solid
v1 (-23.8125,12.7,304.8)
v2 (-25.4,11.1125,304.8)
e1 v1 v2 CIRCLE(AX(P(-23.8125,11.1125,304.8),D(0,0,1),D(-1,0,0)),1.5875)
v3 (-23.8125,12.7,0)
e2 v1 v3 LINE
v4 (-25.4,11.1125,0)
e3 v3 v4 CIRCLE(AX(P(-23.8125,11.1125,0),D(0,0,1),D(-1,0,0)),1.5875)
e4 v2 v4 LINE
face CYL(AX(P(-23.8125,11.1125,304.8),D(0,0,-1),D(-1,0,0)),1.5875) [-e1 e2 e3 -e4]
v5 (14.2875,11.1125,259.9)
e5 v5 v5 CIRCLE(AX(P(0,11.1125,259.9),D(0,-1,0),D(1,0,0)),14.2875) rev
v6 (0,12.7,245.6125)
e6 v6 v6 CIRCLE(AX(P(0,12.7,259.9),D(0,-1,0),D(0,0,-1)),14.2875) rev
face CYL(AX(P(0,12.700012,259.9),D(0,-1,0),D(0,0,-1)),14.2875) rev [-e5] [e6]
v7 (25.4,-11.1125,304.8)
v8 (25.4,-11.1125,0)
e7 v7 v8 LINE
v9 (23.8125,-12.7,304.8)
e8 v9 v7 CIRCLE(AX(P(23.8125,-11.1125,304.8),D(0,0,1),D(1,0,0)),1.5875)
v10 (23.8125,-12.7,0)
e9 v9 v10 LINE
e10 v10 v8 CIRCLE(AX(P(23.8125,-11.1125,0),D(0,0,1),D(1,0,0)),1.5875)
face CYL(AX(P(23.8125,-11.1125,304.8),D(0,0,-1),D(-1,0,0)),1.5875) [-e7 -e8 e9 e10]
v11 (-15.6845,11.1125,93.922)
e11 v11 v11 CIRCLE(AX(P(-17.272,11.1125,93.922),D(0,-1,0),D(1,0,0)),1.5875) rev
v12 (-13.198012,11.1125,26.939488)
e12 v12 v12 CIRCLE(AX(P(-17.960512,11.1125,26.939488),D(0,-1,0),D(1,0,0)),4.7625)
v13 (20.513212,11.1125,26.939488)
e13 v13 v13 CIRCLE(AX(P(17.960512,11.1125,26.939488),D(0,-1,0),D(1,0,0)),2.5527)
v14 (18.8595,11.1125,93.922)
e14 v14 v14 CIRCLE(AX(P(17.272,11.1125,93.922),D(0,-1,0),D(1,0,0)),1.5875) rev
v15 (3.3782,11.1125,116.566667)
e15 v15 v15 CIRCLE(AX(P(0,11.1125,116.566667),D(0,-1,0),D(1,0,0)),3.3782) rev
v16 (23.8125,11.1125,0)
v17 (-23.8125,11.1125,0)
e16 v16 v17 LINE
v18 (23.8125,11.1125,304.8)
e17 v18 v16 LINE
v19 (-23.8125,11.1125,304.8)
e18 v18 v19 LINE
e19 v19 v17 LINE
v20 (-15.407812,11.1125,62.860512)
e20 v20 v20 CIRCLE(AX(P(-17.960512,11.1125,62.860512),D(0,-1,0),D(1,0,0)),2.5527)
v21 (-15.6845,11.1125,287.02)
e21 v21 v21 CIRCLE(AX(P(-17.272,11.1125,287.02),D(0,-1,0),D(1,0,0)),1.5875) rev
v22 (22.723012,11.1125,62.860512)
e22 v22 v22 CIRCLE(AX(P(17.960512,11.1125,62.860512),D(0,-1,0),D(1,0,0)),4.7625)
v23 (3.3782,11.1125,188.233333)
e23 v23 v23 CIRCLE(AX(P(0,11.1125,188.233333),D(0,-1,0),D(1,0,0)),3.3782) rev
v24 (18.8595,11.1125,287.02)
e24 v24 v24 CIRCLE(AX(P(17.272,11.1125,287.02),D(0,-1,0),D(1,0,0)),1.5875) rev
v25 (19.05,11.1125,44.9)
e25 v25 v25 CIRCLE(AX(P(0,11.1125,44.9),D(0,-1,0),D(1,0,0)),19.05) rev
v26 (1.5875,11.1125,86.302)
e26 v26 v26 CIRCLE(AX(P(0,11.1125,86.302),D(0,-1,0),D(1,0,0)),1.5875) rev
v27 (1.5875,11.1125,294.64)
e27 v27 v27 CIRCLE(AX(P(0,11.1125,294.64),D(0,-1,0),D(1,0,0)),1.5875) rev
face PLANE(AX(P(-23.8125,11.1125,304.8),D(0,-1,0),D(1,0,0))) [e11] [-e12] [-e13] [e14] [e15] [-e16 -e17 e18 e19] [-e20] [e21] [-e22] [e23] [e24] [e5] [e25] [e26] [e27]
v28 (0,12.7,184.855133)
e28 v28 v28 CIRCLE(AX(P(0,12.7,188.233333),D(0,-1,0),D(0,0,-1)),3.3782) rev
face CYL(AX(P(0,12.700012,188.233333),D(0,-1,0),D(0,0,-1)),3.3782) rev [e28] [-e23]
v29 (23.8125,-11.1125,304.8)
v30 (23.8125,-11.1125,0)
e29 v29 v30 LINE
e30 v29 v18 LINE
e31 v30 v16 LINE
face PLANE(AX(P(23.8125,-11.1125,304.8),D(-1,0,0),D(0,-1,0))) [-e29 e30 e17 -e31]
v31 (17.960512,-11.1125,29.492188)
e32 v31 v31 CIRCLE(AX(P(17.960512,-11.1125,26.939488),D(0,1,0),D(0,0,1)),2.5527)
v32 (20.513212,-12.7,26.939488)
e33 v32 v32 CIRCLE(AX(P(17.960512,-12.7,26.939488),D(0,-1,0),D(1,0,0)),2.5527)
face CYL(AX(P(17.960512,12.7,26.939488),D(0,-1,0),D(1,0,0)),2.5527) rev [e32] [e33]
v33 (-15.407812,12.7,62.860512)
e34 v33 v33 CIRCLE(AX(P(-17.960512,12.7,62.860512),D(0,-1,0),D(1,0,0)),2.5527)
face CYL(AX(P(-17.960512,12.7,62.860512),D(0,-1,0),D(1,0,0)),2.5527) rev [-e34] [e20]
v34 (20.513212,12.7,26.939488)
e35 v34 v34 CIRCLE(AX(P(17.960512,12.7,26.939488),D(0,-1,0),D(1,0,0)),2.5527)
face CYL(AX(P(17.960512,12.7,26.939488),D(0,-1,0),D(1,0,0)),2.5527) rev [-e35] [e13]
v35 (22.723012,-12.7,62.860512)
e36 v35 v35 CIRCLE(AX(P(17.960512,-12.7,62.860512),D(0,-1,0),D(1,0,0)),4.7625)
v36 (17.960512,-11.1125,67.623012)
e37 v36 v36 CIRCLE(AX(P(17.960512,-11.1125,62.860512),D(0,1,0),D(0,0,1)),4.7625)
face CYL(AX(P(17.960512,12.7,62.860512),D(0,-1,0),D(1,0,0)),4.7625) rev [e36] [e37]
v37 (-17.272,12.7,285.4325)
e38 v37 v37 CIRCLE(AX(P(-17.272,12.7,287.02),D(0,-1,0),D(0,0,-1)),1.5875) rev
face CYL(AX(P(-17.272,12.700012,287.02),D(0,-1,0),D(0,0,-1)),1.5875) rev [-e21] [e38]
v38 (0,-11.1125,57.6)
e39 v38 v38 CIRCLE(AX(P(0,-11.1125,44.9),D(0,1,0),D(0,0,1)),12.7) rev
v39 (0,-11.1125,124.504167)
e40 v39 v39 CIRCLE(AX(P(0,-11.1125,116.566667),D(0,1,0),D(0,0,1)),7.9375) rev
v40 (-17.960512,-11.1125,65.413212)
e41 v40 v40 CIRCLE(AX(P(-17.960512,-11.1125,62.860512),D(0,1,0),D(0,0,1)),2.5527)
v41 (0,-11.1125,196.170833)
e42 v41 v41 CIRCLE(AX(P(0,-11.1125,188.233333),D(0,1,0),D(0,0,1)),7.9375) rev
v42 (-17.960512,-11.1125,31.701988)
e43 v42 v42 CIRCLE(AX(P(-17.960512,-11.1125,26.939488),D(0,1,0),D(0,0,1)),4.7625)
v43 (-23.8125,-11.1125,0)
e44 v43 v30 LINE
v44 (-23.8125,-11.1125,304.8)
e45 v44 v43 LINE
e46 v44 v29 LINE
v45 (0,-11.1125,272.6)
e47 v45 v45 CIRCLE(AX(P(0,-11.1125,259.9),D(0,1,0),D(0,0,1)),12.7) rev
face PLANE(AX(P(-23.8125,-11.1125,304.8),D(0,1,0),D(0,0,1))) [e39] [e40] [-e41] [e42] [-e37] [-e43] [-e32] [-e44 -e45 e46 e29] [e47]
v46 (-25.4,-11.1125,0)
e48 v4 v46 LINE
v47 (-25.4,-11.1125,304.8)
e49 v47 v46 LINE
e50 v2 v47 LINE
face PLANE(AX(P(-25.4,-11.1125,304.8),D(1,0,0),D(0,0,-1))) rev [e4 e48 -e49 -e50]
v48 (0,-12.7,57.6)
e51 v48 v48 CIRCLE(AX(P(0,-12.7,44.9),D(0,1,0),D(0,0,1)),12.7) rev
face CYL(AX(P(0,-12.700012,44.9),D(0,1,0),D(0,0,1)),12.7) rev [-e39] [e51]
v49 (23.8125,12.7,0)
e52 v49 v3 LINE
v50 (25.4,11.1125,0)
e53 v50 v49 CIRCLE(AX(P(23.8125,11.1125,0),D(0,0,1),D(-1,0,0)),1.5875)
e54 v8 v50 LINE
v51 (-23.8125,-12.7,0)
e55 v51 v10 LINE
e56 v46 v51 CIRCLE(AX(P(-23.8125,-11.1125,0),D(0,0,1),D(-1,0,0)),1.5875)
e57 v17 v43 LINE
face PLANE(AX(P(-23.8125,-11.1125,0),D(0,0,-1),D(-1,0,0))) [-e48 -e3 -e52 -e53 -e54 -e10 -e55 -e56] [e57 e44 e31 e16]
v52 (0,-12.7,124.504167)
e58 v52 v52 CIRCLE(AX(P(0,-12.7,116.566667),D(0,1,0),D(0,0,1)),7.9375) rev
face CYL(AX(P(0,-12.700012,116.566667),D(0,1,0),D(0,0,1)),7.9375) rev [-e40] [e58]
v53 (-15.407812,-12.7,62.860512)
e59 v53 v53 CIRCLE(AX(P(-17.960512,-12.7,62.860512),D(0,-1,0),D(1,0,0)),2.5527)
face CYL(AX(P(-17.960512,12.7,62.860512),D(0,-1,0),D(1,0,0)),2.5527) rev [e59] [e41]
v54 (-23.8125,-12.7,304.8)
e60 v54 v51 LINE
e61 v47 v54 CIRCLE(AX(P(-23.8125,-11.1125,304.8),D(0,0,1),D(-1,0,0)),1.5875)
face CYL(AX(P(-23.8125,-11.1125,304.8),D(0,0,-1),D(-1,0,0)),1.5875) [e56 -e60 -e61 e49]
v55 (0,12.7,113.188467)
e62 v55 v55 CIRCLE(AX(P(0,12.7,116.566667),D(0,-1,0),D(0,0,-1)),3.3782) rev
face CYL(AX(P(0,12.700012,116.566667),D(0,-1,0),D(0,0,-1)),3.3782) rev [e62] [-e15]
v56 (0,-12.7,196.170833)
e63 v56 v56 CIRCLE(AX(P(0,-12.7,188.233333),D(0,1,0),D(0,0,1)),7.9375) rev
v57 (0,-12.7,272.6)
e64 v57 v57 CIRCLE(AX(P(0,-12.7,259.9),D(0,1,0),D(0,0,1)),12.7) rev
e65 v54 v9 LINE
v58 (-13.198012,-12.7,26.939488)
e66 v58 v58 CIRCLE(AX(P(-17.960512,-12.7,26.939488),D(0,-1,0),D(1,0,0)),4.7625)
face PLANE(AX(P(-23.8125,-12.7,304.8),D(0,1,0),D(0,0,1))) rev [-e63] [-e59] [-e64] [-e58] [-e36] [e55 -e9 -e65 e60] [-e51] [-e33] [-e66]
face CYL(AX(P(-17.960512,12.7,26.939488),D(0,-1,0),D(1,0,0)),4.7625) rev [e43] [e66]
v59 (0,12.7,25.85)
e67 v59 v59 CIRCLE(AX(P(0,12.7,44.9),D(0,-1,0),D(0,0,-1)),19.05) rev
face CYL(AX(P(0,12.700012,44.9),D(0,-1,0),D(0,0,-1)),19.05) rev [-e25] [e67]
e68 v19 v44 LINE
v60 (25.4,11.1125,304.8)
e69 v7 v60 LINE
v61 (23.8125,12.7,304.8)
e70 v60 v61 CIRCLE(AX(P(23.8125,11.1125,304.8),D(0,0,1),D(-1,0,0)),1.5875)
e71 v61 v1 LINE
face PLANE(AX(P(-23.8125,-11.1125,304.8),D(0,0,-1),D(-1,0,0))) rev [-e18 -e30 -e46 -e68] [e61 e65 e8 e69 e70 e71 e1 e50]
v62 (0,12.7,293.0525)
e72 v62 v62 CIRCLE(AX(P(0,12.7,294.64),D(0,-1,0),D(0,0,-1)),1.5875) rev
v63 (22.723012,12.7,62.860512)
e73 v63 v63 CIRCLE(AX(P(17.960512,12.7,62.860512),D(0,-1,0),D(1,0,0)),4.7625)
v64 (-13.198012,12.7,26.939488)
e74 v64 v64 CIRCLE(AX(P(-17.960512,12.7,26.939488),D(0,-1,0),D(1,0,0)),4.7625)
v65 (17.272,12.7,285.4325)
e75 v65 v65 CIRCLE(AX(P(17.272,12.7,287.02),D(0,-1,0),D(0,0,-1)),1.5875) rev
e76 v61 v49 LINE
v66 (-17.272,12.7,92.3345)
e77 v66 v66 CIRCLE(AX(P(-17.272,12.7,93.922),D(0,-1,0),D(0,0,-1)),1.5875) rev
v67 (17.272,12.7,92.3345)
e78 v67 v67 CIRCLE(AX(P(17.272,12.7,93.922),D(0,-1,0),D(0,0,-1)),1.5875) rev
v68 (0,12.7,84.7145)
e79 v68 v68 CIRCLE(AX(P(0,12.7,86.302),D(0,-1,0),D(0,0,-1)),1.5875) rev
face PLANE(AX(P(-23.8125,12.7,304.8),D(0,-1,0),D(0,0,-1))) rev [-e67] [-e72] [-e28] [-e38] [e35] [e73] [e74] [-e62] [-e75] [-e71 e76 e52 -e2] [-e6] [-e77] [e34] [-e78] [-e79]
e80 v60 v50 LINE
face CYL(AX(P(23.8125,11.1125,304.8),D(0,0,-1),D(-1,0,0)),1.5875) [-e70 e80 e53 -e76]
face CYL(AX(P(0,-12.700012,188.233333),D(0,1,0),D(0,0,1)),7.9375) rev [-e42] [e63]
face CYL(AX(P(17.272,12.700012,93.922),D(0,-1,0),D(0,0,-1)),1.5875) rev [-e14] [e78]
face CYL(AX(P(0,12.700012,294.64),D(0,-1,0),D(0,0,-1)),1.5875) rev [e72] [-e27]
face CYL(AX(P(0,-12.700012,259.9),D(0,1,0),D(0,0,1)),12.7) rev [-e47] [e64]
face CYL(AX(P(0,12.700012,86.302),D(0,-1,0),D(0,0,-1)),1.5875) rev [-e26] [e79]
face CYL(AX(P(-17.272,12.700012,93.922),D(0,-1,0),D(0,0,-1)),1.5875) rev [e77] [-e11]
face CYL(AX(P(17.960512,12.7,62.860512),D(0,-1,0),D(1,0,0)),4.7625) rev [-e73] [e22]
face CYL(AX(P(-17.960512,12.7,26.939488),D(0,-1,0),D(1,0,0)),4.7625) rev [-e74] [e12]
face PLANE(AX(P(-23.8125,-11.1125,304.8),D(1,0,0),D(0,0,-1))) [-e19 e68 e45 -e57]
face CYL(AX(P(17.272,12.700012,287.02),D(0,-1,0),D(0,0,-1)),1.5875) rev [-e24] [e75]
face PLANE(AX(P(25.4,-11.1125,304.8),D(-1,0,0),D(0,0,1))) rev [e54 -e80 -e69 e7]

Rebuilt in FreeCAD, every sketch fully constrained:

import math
import FreeCAD as App
import Part
import Sketcher
Q = App.Units.Quantity


def add_polygon(sketch, points):
    """Adds a closed chain of lines whose ends are joined by coincident constraints."""
    first, n = sketch.GeometryCount, len(points)
    for a, b in zip(points, points[1:] + points[:1]):
        sketch.addGeometry(Part.LineSegment(App.Vector(*a, 0), App.Vector(*b, 0)), False)
    for i in range(n):
        sketch.addConstraint(Sketcher.Constraint("Coincident", first + i, 2, first + (i + 1) % n, 1))

doc = App.newDocument("Part")
body = doc.addObject("PartDesign::Body", "Body")

# Sketch on XY plane
sketch1 = body.newObject("Sketcher::SketchObject", "Sketch")
sketch1.AttachmentSupport = (doc.getObject("XY_Plane"), [""])
sketch1.MapMode = "FlatFace"
sketch1.addGeometry(Part.LineSegment(App.Vector(-23.8, -12.7, 0), App.Vector(23.8, -12.7, 0)), False)  # 0
sketch1.addGeometry(Part.ArcOfCircle(Part.Circle(App.Vector(23.8, -11.1, 0), App.Vector(0, 0, 1), 1.6), math.radians(-90), math.radians(0)), False)  # 1
sketch1.addGeometry(Part.LineSegment(App.Vector(25.4, -11.1, 0), App.Vector(25.4, 11.1, 0)), False)  # 2
sketch1.addGeometry(Part.ArcOfCircle(Part.Circle(App.Vector(23.8, 11.1, 0), App.Vector(0, 0, 1), 1.6), math.radians(0), math.radians(90)), False)  # 3
sketch1.addGeometry(Part.LineSegment(App.Vector(23.8, 12.7, 0), App.Vector(-23.8, 12.7, 0)), False)  # 4
sketch1.addGeometry(Part.ArcOfCircle(Part.Circle(App.Vector(-23.8, 11.1, 0), App.Vector(0, 0, 1), 1.6), math.radians(90), math.radians(180)), False)  # 5
sketch1.addGeometry(Part.LineSegment(App.Vector(-25.4, 11.1, 0), App.Vector(-25.4, -11.1, 0)), False)  # 6
sketch1.addGeometry(Part.ArcOfCircle(Part.Circle(App.Vector(-23.8, -11.1, 0), App.Vector(0, 0, 1), 1.6), math.radians(180), math.radians(270)), False)  # 7
add_polygon(sketch1, [(23.8, -11.1), (-23.8, -11.1), (-23.8, 11.1), (23.8, 11.1)])  # lines 8-11
sketch1.addConstraint([
    Sketcher.Constraint("Tangent", 0, 2, 1, 1),
    Sketcher.Constraint("Tangent", 1, 2, 2, 1),
    Sketcher.Constraint("Tangent", 2, 2, 3, 1),
    Sketcher.Constraint("Tangent", 3, 2, 4, 1),
    Sketcher.Constraint("Tangent", 4, 2, 5, 1),
    Sketcher.Constraint("Tangent", 5, 2, 6, 1),
    Sketcher.Constraint("Tangent", 6, 2, 7, 1),
    Sketcher.Constraint("Tangent", 7, 2, 0, 1),
    Sketcher.Constraint("Horizontal", 0),
    Sketcher.Constraint("Vertical", 2),
    Sketcher.Constraint("Horizontal", 4),
    Sketcher.Constraint("Vertical", 6),
    Sketcher.Constraint("Horizontal", 8),
    Sketcher.Constraint("Vertical", 9),
    Sketcher.Constraint("Horizontal", 10),
    Sketcher.Constraint("Vertical", 11),
    Sketcher.Constraint("Coincident", 8, 2, 7, 3),
    Sketcher.Constraint("Coincident", 9, 2, 5, 3),
    Sketcher.Constraint("Coincident", 10, 2, 3, 3),
    Sketcher.Constraint("Equal", 1, 3),
    Sketcher.Constraint("Symmetric", 1, 3, 5, 3, -1, 1),
    Sketcher.Constraint("DistanceX", -1, 1, 1, 2, Q("1 in")),
    Sketcher.Constraint("Radius", 1, Q("0.0625 in")),
    Sketcher.Constraint("DistanceY", 0, 2, 3, 2, Q("1 in")),
])
pad1 = body.newObject("PartDesign::Pad", "Pad")
pad1.Profile = sketch1
pad1.Length = Q("12 in")

# Sketch on XZ plane
sketch2 = body.newObject("Sketcher::SketchObject", "Sketch001")
sketch2.AttachmentSupport = (doc.getObject("XZ_Plane"), [""])
sketch2.MapMode = "FlatFace"
sketch2.AttachmentOffset = App.Placement(App.Vector(0, 0, -0.5 * 25.4), App.Rotation())
sketch2.addGeometry(Part.Circle(App.Vector(0, 260, 0), App.Vector(0, 0, 1), 14), False)
sketch2.addConstraint([
    Sketcher.Constraint("PointOnObject", 0, 3, -2),
    Sketcher.Constraint("Diameter", 0, Q("1.125 in")),
    Sketcher.Constraint("DistanceY", -1, 1, 0, 3, Q("259.9 mm")),
])
pocket1 = body.newObject("PartDesign::Pocket", "Pocket")
pocket1.Profile = sketch2
pocket1.Type = "UpToFirst"
pocket1.Reversed = True

# Sketch on XZ plane
sketch3 = body.newObject("Sketcher::SketchObject", "Sketch002")
sketch3.AttachmentSupport = (doc.getObject("XZ_Plane"), [""])
sketch3.MapMode = "FlatFace"
sketch3.AttachmentOffset = App.Placement(App.Vector(0, 0, -0.5 * 25.4), App.Rotation())
sketch3.addGeometry(Part.Circle(App.Vector(0, 45, 0), App.Vector(0, 0, 1), 19), False)
sketch3.addConstraint([
    Sketcher.Constraint("PointOnObject", 0, 3, -2),
    Sketcher.Constraint("Diameter", 0, Q("1.5 in")),
    Sketcher.Constraint("DistanceY", -1, 1, 0, 3, Q("44.9 mm")),
])
pocket2 = body.newObject("PartDesign::Pocket", "Pocket001")
pocket2.Profile = sketch3
pocket2.Type = "UpToFirst"
pocket2.Reversed = True

# Sketch on XZ plane
sketch4 = body.newObject("Sketcher::SketchObject", "Sketch003")
sketch4.AttachmentSupport = (doc.getObject("XZ_Plane"), [""])
sketch4.MapMode = "FlatFace"
sketch4.AttachmentOffset = App.Placement(App.Vector(0, 0, -0.5 * 25.4), App.Rotation())
sketch4.addGeometry([
    Part.Circle(App.Vector(0, 260, 0), App.Vector(0, 0, 1), 14),
    Part.Circle(App.Vector(0, 45, 0), App.Vector(0, 0, 1), 19),
], False)
sketch4.addConstraint([
    Sketcher.Constraint("PointOnObject", 0, 3, -2),
    Sketcher.Constraint("PointOnObject", 1, 3, -2),
    Sketcher.Constraint("Diameter", 1, Q("1.5 in")),
    Sketcher.Constraint("Diameter", 0, Q("1.125 in")),
    Sketcher.Constraint("DistanceY", -1, 1, 0, 3, Q("259.9 mm")),
    Sketcher.Constraint("DistanceY", -1, 1, 1, 3, Q("44.9 mm")),
])
pocket3 = body.newObject("PartDesign::Pocket", "Pocket002")
pocket3.Profile = sketch4
pocket3.Length = 1

# Sketch on XZ plane
sketch5 = body.newObject("Sketcher::SketchObject", "Sketch004")
sketch5.AttachmentSupport = (doc.getObject("XZ_Plane"), [""])
sketch5.MapMode = "FlatFace"
sketch5.AttachmentOffset = App.Placement(App.Vector(0, 0, 0.5 * 25.4), App.Rotation())
sketch5.addGeometry(Part.Circle(App.Vector(0, 45, 0), App.Vector(0, 0, 1), 13), False)
sketch5.addConstraint([
    Sketcher.Constraint("PointOnObject", 0, 3, -2),
    Sketcher.Constraint("Diameter", 0, Q("1 in")),
    Sketcher.Constraint("DistanceY", -1, 1, 0, 3, Q("44.9 mm")),
])
pocket4 = body.newObject("PartDesign::Pocket", "Pocket003")
pocket4.Profile = sketch5
pocket4.Type = "UpToFirst"

# Sketch on XZ plane
sketch6 = body.newObject("Sketcher::SketchObject", "Sketch005")
sketch6.AttachmentSupport = (doc.getObject("XZ_Plane"), [""])
sketch6.MapMode = "FlatFace"
sketch6.AttachmentOffset = App.Placement(App.Vector(0, 0, 0.5 * 25.4), App.Rotation())
sketch6.addGeometry(Part.Circle(App.Vector(0, 260, 0), App.Vector(0, 0, 1), 13), False)
sketch6.addConstraint([
    Sketcher.Constraint("PointOnObject", 0, 3, -2),
    Sketcher.Constraint("Diameter", 0, Q("1 in")),
    Sketcher.Constraint("DistanceY", -1, 1, 0, 3, Q("259.9 mm")),
])
pocket5 = body.newObject("PartDesign::Pocket", "Pocket004")
pocket5.Profile = sketch6
pocket5.Type = "UpToFirst"

# Sketch on XZ plane
sketch7 = body.newObject("Sketcher::SketchObject", "Sketch006")
sketch7.AttachmentSupport = (doc.getObject("XZ_Plane"), [""])
sketch7.MapMode = "FlatFace"
sketch7.AttachmentOffset = App.Placement(App.Vector(0, 0, 0.5 * 25.4), App.Rotation())
sketch7.addGeometry([
    Part.Circle(App.Vector(0, 45, 0), App.Vector(0, 0, 1), 13),
    Part.Circle(App.Vector(0, 260, 0), App.Vector(0, 0, 1), 13),
], False)
sketch7.addConstraint([
    Sketcher.Constraint("Equal", 0, 1),
    Sketcher.Constraint("PointOnObject", 0, 3, -2),
    Sketcher.Constraint("PointOnObject", 1, 3, -2),
    Sketcher.Constraint("Diameter", 0, Q("1 in")),
    Sketcher.Constraint("DistanceY", -1, 1, 0, 3, Q("44.9 mm")),
    Sketcher.Constraint("DistanceY", -1, 1, 1, 3, Q("259.9 mm")),
])
pocket6 = body.newObject("PartDesign::Pocket", "Pocket005")
pocket6.Profile = sketch7
pocket6.Length = 1
pocket6.Reversed = True

# Sketch on XZ plane
sketch8 = body.newObject("Sketcher::SketchObject", "Sketch007")
sketch8.AttachmentSupport = (doc.getObject("XZ_Plane"), [""])
sketch8.MapMode = "FlatFace"
sketch8.AttachmentOffset = App.Placement(App.Vector(0, 0, -0.4375 * 25.4), App.Rotation())
sketch8.addGeometry([
    Part.Circle(App.Vector(18, 62.9, 0), App.Vector(0, 0, 1), 4.8),
    Part.Circle(App.Vector(-18, 26.9, 0), App.Vector(0, 0, 1), 4.8),
    Part.Circle(App.Vector(18, 26.9, 0), App.Vector(0, 0, 1), 2.6),
    Part.Circle(App.Vector(-18, 62.9, 0), App.Vector(0, 0, 1), 2.6),
], False)
sketch8.addConstraint([
    Sketcher.Constraint("Equal", 0, 1),
    Sketcher.Constraint("Equal", 2, 3),
    Sketcher.Constraint("Symmetric", 1, 3, 2, 3, -2),
    Sketcher.Constraint("Symmetric", 0, 3, 3, 3, -2),
    Sketcher.Constraint("Vertical", 0, 3, 2, 3),
    Sketcher.Constraint("Diameter", 0, Q("0.375 in")),
    Sketcher.Constraint("Diameter", 2, Q("0.201 in")),
    Sketcher.Constraint("DistanceX", -1, 1, 0, 3, Q("17.960512 mm")),
    Sketcher.Constraint("DistanceY", -1, 1, 0, 3, Q("62.860512 mm")),
    Sketcher.Constraint("DistanceY", -1, 1, 1, 3, Q("26.939488 mm")),
])
pocket7 = body.newObject("PartDesign::Pocket", "Pocket006")
pocket7.Profile = sketch8
pocket7.Type = "ThroughAll"
pocket7.Midplane = True

# Sketch on XZ plane
sketch9 = body.newObject("Sketcher::SketchObject", "Sketch008")
sketch9.AttachmentSupport = (doc.getObject("XZ_Plane"), [""])
sketch9.MapMode = "FlatFace"
sketch9.AttachmentOffset = App.Placement(App.Vector(0, 0, -0.5 * 25.4), App.Rotation())
sketch9.addGeometry(Part.Circle(App.Vector(0, 116.6, 0), App.Vector(0, 0, 1), 3.4), False)
sketch9.addConstraint([
    Sketcher.Constraint("PointOnObject", 0, 3, -2),
    Sketcher.Constraint("Diameter", 0, Q("0.266 in")),
    Sketcher.Constraint("DistanceY", -1, 1, 0, 3, Q("116.566667 mm")),
])
pocket8 = body.newObject("PartDesign::Pocket", "Pocket007")
pocket8.Profile = sketch9
pocket8.Type = "UpToFirst"
pocket8.Reversed = True

# Sketch on XZ plane
sketch10 = body.newObject("Sketcher::SketchObject", "Sketch009")
sketch10.AttachmentSupport = (doc.getObject("XZ_Plane"), [""])
sketch10.MapMode = "FlatFace"
sketch10.AttachmentOffset = App.Placement(App.Vector(0, 0, -0.5 * 25.4), App.Rotation())
sketch10.addGeometry(Part.Circle(App.Vector(0, 188.2, 0), App.Vector(0, 0, 1), 3.4), False)
sketch10.addConstraint([
    Sketcher.Constraint("PointOnObject", 0, 3, -2),
    Sketcher.Constraint("Diameter", 0, Q("0.266 in")),
    Sketcher.Constraint("DistanceY", -1, 1, 0, 3, Q("188.233333 mm")),
])
pocket9 = body.newObject("PartDesign::Pocket", "Pocket008")
pocket9.Profile = sketch10
pocket9.Type = "UpToFirst"
pocket9.Reversed = True

# Sketch on XZ plane
sketch11 = body.newObject("Sketcher::SketchObject", "Sketch010")
sketch11.AttachmentSupport = (doc.getObject("XZ_Plane"), [""])
sketch11.MapMode = "FlatFace"
sketch11.AttachmentOffset = App.Placement(App.Vector(0, 0, -0.5 * 25.4), App.Rotation())
sketch11.addGeometry([
    Part.Circle(App.Vector(0, 116.6, 0), App.Vector(0, 0, 1), 3.4),
    Part.Circle(App.Vector(0, 188.2, 0), App.Vector(0, 0, 1), 3.4),
], False)
sketch11.addConstraint([
    Sketcher.Constraint("Equal", 0, 1),
    Sketcher.Constraint("PointOnObject", 0, 3, -2),
    Sketcher.Constraint("PointOnObject", 1, 3, -2),
    Sketcher.Constraint("Diameter", 0, Q("0.266 in")),
    Sketcher.Constraint("DistanceY", -1, 1, 0, 3, Q("116.566667 mm")),
    Sketcher.Constraint("DistanceY", -1, 1, 1, 3, Q("188.233333 mm")),
])
pocket10 = body.newObject("PartDesign::Pocket", "Pocket009")
pocket10.Profile = sketch11
pocket10.Length = 1

# Sketch on XZ plane
sketch12 = body.newObject("Sketcher::SketchObject", "Sketch011")
sketch12.AttachmentSupport = (doc.getObject("XZ_Plane"), [""])
sketch12.MapMode = "FlatFace"
sketch12.AttachmentOffset = App.Placement(App.Vector(0, 0, 0.5 * 25.4), App.Rotation())
sketch12.addGeometry(Part.Circle(App.Vector(0, 117, 0), App.Vector(0, 0, 1), 8), False)
sketch12.addConstraint([
    Sketcher.Constraint("PointOnObject", 0, 3, -2),
    Sketcher.Constraint("Diameter", 0, Q("0.625 in")),
    Sketcher.Constraint("DistanceY", -1, 1, 0, 3, Q("116.566667 mm")),
])
pocket11 = body.newObject("PartDesign::Pocket", "Pocket010")
pocket11.Profile = sketch12
pocket11.Type = "UpToFirst"

# Sketch on XZ plane
sketch13 = body.newObject("Sketcher::SketchObject", "Sketch012")
sketch13.AttachmentSupport = (doc.getObject("XZ_Plane"), [""])
sketch13.MapMode = "FlatFace"
sketch13.AttachmentOffset = App.Placement(App.Vector(0, 0, 0.5 * 25.4), App.Rotation())
sketch13.addGeometry(Part.Circle(App.Vector(0, 188, 0), App.Vector(0, 0, 1), 8), False)
sketch13.addConstraint([
    Sketcher.Constraint("PointOnObject", 0, 3, -2),
    Sketcher.Constraint("Diameter", 0, Q("0.625 in")),
    Sketcher.Constraint("DistanceY", -1, 1, 0, 3, Q("188.233333 mm")),
])
pocket12 = body.newObject("PartDesign::Pocket", "Pocket011")
pocket12.Profile = sketch13
pocket12.Type = "UpToFirst"

# Sketch on XZ plane
sketch14 = body.newObject("Sketcher::SketchObject", "Sketch013")
sketch14.AttachmentSupport = (doc.getObject("XZ_Plane"), [""])
sketch14.MapMode = "FlatFace"
sketch14.AttachmentOffset = App.Placement(App.Vector(0, 0, 0.5 * 25.4), App.Rotation())
sketch14.addGeometry([
    Part.Circle(App.Vector(0, 117, 0), App.Vector(0, 0, 1), 8),
    Part.Circle(App.Vector(0, 188, 0), App.Vector(0, 0, 1), 8),
], False)
sketch14.addConstraint([
    Sketcher.Constraint("Equal", 0, 1),
    Sketcher.Constraint("PointOnObject", 0, 3, -2),
    Sketcher.Constraint("PointOnObject", 1, 3, -2),
    Sketcher.Constraint("Diameter", 0, Q("0.625 in")),
    Sketcher.Constraint("DistanceY", -1, 1, 0, 3, Q("116.566667 mm")),
    Sketcher.Constraint("DistanceY", -1, 1, 1, 3, Q("188.233333 mm")),
])
pocket13 = body.newObject("PartDesign::Pocket", "Pocket012")
pocket13.Profile = sketch14
pocket13.Length = 1
pocket13.Reversed = True

# Sketch on XZ plane
sketch15 = body.newObject("Sketcher::SketchObject", "Sketch014")
sketch15.AttachmentSupport = (doc.getObject("XZ_Plane"), [""])
sketch15.MapMode = "FlatFace"
sketch15.AttachmentOffset = App.Placement(App.Vector(0, 0, -0.5 * 25.4), App.Rotation())
sketch15.addGeometry(Part.Circle(App.Vector(17.3, 287, 0), App.Vector(0, 0, 1), 1.6), False)
sketch15.addConstraint([
    Sketcher.Constraint("Diameter", 0, Q("0.125 in")),
    Sketcher.Constraint("DistanceY", -1, 1, 0, 3, Q("11.3 in")),
    Sketcher.Constraint("DistanceX", -1, 1, 0, 3, Q("0.68 in")),
])
pocket14 = body.newObject("PartDesign::Pocket", "Pocket013")
pocket14.Profile = sketch15
pocket14.Type = "UpToFirst"
pocket14.Reversed = True

# Sketch on XZ plane
sketch16 = body.newObject("Sketcher::SketchObject", "Sketch015")
sketch16.AttachmentSupport = (doc.getObject("XZ_Plane"), [""])
sketch16.MapMode = "FlatFace"
sketch16.AttachmentOffset = App.Placement(App.Vector(0, 0, -0.5 * 25.4), App.Rotation())
sketch16.addGeometry(Part.Circle(App.Vector(-17.3, 287, 0), App.Vector(0, 0, 1), 1.6), False)
sketch16.addConstraint([
    Sketcher.Constraint("Diameter", 0, Q("0.125 in")),
    Sketcher.Constraint("DistanceY", -1, 1, 0, 3, Q("11.3 in")),
    Sketcher.Constraint("DistanceX", 0, 3, -1, 1, Q("0.68 in")),
])
pocket15 = body.newObject("PartDesign::Pocket", "Pocket014")
pocket15.Profile = sketch16
pocket15.Type = "UpToFirst"
pocket15.Reversed = True

# Sketch on XZ plane
sketch17 = body.newObject("Sketcher::SketchObject", "Sketch016")
sketch17.AttachmentSupport = (doc.getObject("XZ_Plane"), [""])
sketch17.MapMode = "FlatFace"
sketch17.AttachmentOffset = App.Placement(App.Vector(0, 0, -0.5 * 25.4), App.Rotation())
sketch17.addGeometry(Part.Circle(App.Vector(0, 294.6, 0), App.Vector(0, 0, 1), 1.6), False)
sketch17.addConstraint([
    Sketcher.Constraint("PointOnObject", 0, 3, -2),
    Sketcher.Constraint("Diameter", 0, Q("0.125 in")),
    Sketcher.Constraint("DistanceY", -1, 1, 0, 3, Q("11.6 in")),
])
pocket16 = body.newObject("PartDesign::Pocket", "Pocket015")
pocket16.Profile = sketch17
pocket16.Type = "UpToFirst"
pocket16.Reversed = True

# Sketch on XZ plane
sketch18 = body.newObject("Sketcher::SketchObject", "Sketch017")
sketch18.AttachmentSupport = (doc.getObject("XZ_Plane"), [""])
sketch18.MapMode = "FlatFace"
sketch18.AttachmentOffset = App.Placement(App.Vector(0, 0, -0.5 * 25.4), App.Rotation())
sketch18.addGeometry(Part.Circle(App.Vector(17.3, 93.9, 0), App.Vector(0, 0, 1), 1.6), False)
sketch18.addConstraint([
    Sketcher.Constraint("Diameter", 0, Q("0.125 in")),
    Sketcher.Constraint("DistanceX", -1, 1, 0, 3, Q("0.68 in")),
    Sketcher.Constraint("DistanceY", -1, 1, 0, 3, Q("93.922 mm")),
])
pocket17 = body.newObject("PartDesign::Pocket", "Pocket016")
pocket17.Profile = sketch18
pocket17.Type = "UpToFirst"
pocket17.Reversed = True

# Sketch on XZ plane
sketch19 = body.newObject("Sketcher::SketchObject", "Sketch018")
sketch19.AttachmentSupport = (doc.getObject("XZ_Plane"), [""])
sketch19.MapMode = "FlatFace"
sketch19.AttachmentOffset = App.Placement(App.Vector(0, 0, -0.5 * 25.4), App.Rotation())
sketch19.addGeometry(Part.Circle(App.Vector(0, 86.3, 0), App.Vector(0, 0, 1), 1.6), False)
sketch19.addConstraint([
    Sketcher.Constraint("PointOnObject", 0, 3, -2),
    Sketcher.Constraint("Diameter", 0, Q("0.125 in")),
    Sketcher.Constraint("DistanceY", -1, 1, 0, 3, Q("86.302 mm")),
])
pocket18 = body.newObject("PartDesign::Pocket", "Pocket017")
pocket18.Profile = sketch19
pocket18.Type = "UpToFirst"
pocket18.Reversed = True

# Sketch on XZ plane
sketch20 = body.newObject("Sketcher::SketchObject", "Sketch019")
sketch20.AttachmentSupport = (doc.getObject("XZ_Plane"), [""])
sketch20.MapMode = "FlatFace"
sketch20.AttachmentOffset = App.Placement(App.Vector(0, 0, -0.5 * 25.4), App.Rotation())
sketch20.addGeometry(Part.Circle(App.Vector(-17.3, 93.9, 0), App.Vector(0, 0, 1), 1.6), False)
sketch20.addConstraint([
    Sketcher.Constraint("Diameter", 0, Q("0.125 in")),
    Sketcher.Constraint("DistanceX", 0, 3, -1, 1, Q("0.68 in")),
    Sketcher.Constraint("DistanceY", -1, 1, 0, 3, Q("93.922 mm")),
])
pocket19 = body.newObject("PartDesign::Pocket", "Pocket018")
pocket19.Profile = sketch20
pocket19.Type = "UpToFirst"
pocket19.Reversed = True

# Sketch on XZ plane
sketch21 = body.newObject("Sketcher::SketchObject", "Sketch020")
sketch21.AttachmentSupport = (doc.getObject("XZ_Plane"), [""])
sketch21.MapMode = "FlatFace"
sketch21.AttachmentOffset = App.Placement(App.Vector(0, 0, -0.5 * 25.4), App.Rotation())
sketch21.addGeometry([
    Part.Circle(App.Vector(17.3, 287, 0), App.Vector(0, 0, 1), 1.6),  # 0
    Part.Circle(App.Vector(-17.3, 287, 0), App.Vector(0, 0, 1), 1.6),  # 1
    Part.Circle(App.Vector(0, 294.6, 0), App.Vector(0, 0, 1), 1.6),  # 2
    Part.Circle(App.Vector(17.3, 93.9, 0), App.Vector(0, 0, 1), 1.6),  # 3
    Part.Circle(App.Vector(0, 86.3, 0), App.Vector(0, 0, 1), 1.6),  # 4
    Part.Circle(App.Vector(-17.3, 93.9, 0), App.Vector(0, 0, 1), 1.6),  # 5
], False)
sketch21.addConstraint([
    Sketcher.Constraint("Equal", 0, 1),
    Sketcher.Constraint("Equal", 1, 2),
    Sketcher.Constraint("Equal", 2, 3),
    Sketcher.Constraint("Equal", 3, 4),
    Sketcher.Constraint("Equal", 4, 5),
    Sketcher.Constraint("Symmetric", 0, 3, 1, 3, -2),
    Sketcher.Constraint("Symmetric", 3, 3, 5, 3, -2),
    Sketcher.Constraint("PointOnObject", 2, 3, -2),
    Sketcher.Constraint("PointOnObject", 4, 3, -2),
    Sketcher.Constraint("Vertical", 0, 3, 3, 3),
    Sketcher.Constraint("Diameter", 0, Q("0.125 in")),
    Sketcher.Constraint("DistanceY", -1, 1, 0, 3, Q("11.3 in")),
    Sketcher.Constraint("DistanceY", -1, 1, 2, 3, Q("11.6 in")),
    Sketcher.Constraint("DistanceY", 4, 3, 3, 3, Q("0.3 in")),
    Sketcher.Constraint("DistanceX", -1, 1, 0, 3, Q("0.68 in")),
    Sketcher.Constraint("DistanceY", -1, 1, 3, 3, Q("93.922 mm")),
])
pocket20 = body.newObject("PartDesign::Pocket", "Pocket019")
pocket20.Profile = sketch21
pocket20.Length = 1

doc.recompute()
